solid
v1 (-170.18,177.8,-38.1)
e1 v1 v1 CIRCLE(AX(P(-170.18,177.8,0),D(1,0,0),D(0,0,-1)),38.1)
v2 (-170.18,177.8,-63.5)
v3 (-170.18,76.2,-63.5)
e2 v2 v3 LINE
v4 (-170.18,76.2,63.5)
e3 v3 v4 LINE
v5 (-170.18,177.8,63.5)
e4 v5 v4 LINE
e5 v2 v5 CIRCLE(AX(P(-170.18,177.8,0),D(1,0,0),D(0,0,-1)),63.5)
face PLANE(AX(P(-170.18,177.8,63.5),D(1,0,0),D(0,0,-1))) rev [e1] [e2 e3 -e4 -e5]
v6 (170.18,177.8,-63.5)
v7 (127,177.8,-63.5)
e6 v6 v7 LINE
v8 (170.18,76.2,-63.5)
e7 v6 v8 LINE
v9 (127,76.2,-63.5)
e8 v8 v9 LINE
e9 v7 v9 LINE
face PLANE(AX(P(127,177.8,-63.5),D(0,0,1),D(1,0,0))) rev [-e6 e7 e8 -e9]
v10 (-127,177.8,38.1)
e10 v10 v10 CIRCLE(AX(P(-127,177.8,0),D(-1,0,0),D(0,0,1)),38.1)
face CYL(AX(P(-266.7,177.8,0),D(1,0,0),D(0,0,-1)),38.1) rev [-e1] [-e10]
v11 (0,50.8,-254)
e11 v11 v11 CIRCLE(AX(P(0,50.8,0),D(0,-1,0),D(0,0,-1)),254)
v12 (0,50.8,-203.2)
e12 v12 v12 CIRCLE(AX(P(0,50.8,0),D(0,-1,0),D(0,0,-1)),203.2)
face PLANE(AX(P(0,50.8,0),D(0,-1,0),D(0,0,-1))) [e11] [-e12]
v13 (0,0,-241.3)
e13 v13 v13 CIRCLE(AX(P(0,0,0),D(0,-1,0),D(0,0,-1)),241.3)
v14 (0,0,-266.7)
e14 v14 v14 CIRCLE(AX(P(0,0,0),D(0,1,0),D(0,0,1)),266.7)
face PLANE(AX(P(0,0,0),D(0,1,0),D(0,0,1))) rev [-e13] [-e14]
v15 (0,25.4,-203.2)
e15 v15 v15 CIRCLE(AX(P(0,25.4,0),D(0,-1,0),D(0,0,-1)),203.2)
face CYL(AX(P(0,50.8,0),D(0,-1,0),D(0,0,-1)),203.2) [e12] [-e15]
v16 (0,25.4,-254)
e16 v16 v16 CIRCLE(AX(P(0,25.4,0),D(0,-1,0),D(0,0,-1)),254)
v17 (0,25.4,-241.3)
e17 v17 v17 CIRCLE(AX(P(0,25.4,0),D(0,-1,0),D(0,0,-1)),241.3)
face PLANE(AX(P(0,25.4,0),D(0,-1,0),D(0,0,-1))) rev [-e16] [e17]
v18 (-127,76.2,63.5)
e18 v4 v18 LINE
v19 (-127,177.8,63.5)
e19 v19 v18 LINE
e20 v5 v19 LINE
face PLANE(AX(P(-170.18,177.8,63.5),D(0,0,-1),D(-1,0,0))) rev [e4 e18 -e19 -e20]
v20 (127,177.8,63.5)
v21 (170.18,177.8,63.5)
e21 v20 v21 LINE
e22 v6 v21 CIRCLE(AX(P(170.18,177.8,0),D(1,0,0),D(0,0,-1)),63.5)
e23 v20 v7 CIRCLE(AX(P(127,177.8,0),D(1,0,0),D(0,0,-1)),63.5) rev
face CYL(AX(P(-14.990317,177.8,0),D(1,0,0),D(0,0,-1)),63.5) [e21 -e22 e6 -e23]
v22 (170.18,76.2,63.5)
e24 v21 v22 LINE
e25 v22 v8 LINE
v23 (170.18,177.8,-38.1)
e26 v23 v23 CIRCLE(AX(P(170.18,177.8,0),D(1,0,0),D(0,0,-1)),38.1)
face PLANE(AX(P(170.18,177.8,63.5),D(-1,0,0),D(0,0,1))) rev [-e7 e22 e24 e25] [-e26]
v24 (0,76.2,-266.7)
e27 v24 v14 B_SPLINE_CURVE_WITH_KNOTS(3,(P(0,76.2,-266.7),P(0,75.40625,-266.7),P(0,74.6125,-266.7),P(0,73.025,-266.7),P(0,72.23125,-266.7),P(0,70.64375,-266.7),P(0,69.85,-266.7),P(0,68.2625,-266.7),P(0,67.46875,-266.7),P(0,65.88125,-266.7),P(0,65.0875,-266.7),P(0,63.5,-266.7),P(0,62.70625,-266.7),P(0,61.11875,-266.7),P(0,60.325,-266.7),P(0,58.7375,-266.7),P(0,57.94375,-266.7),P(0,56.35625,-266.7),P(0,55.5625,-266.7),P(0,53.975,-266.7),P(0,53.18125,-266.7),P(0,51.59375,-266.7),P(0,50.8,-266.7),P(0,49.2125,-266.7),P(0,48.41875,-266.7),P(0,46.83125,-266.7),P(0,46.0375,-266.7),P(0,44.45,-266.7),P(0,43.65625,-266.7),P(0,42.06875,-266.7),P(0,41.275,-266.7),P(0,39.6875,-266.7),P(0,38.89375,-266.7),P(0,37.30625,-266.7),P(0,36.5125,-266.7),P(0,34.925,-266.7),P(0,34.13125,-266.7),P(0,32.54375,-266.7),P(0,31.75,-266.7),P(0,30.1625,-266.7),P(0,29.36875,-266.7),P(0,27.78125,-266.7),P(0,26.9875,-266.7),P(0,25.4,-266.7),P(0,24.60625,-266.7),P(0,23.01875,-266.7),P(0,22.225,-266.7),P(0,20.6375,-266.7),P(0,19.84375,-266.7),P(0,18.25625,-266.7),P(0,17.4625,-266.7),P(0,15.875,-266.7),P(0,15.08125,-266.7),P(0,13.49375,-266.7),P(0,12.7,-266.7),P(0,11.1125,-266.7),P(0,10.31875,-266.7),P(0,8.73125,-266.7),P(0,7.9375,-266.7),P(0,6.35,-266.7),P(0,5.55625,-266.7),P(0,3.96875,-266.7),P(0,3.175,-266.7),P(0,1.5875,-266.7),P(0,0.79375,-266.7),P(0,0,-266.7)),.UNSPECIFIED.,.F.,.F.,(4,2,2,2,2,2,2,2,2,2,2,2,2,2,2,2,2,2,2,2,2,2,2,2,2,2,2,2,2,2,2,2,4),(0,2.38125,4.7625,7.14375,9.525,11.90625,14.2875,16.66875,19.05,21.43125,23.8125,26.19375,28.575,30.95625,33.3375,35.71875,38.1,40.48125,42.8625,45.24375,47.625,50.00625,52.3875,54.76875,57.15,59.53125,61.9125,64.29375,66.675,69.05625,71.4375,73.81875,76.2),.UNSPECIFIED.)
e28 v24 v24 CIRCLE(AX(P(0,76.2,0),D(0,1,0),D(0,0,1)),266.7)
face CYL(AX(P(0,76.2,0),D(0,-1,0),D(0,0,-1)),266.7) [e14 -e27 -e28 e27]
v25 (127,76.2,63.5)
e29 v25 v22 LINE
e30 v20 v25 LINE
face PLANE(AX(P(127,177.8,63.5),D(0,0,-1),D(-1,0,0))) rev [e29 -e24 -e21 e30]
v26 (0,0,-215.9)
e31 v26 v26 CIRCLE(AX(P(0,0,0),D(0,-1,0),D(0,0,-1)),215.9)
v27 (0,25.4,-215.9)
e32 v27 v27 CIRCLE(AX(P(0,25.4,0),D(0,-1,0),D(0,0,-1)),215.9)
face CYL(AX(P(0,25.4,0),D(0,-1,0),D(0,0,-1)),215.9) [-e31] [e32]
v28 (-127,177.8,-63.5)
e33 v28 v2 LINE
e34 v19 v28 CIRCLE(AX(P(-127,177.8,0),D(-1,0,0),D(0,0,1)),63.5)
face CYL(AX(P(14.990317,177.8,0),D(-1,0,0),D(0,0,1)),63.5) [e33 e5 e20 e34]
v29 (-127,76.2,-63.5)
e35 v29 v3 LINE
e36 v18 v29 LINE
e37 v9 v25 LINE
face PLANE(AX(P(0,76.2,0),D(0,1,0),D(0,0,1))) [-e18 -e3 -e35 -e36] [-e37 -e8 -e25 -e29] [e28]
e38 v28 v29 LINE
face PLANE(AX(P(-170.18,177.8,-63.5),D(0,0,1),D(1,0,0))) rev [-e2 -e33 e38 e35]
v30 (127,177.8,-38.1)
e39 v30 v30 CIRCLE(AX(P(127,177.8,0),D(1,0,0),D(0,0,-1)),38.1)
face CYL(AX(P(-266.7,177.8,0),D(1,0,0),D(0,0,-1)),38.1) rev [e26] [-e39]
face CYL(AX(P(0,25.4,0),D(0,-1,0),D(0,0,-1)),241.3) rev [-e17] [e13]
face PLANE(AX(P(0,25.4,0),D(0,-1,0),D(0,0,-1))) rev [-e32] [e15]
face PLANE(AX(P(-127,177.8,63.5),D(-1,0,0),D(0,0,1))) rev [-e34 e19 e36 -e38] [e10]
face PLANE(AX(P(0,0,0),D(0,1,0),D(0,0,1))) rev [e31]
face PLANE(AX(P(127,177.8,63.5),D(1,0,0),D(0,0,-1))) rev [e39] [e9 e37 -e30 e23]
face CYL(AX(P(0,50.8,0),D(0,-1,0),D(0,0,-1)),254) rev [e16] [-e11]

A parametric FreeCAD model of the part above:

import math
import FreeCAD as App
import Part
import Sketcher
from FreeCAD import Vector
Q = App.Units.Quantity


def add_polygon(sketch, points):
    """Adds a closed chain of lines whose ends are joined by coincident constraints."""
    first, n = sketch.GeometryCount, len(points)
    for a, b in zip(points, points[1:] + points[:1]):
        sketch.addGeometry(Part.LineSegment(App.Vector(*a, 0), App.Vector(*b, 0)), False)
    for i in range(n):
        sketch.addConstraint(Sketcher.Constraint("Coincident", first + i, 2, first + (i + 1) % n, 1))

doc = App.newDocument("Part")
body = doc.addObject("PartDesign::Body", "Body")

# Sketch on XZ plane
sketch1 = body.newObject("Sketcher::SketchObject", "Sketch")
sketch1.AttachmentSupport = (doc.getObject("XZ_Plane"), [""])
sketch1.MapMode = "FlatFace"
sketch1.addGeometry(Part.Circle(Vector(0, 0, 0), Vector(0, 0, 1), 267), False)
sketch1.addConstraint([
    Sketcher.Constraint("Coincident", 0, 3, -1, 1),
    Sketcher.Constraint("Diameter", 0, Q("21 in")),
])
pad1 = body.newObject("PartDesign::Pad", "Pad")
pad1.Profile = sketch1
pad1.Length = Q("3 in")
pad1.Reversed = True

# Sketch on XZ plane
sketch2 = body.newObject("Sketcher::SketchObject", "Sketch001")
sketch2.AttachmentSupport = (doc.getObject("XZ_Plane"), [""])
sketch2.MapMode = "FlatFace"
sketch2.addGeometry([
    Part.Circle(Vector(0, 0, 0), Vector(0, 0, 1), 241),
    Part.Circle(Vector(0, 0, 0), Vector(0, 0, 1), 216),
], False)
sketch2.addConstraint([
    Sketcher.Constraint("Coincident", 0, 3, -1, 1),
    Sketcher.Constraint("Coincident", 1, 3, -1, 1),
    Sketcher.Constraint("Diameter", 0, Q("19 in")),
    Sketcher.Constraint("Diameter", 1, Q("17 in")),
])
pocket1 = body.newObject("PartDesign::Pocket", "Pocket")
pocket1.Profile = sketch2
pocket1.Length = Q("1 in")

# Sketch on XZ plane
sketch3 = body.newObject("Sketcher::SketchObject", "Sketch002")
sketch3.AttachmentSupport = (doc.getObject("XZ_Plane"), [""])
sketch3.MapMode = "FlatFace"
sketch3.AttachmentOffset = App.Placement(Vector(0, 0, -1 * 25.4), App.Rotation())
sketch3.addGeometry([
    Part.Circle(Vector(0, 0, 0), Vector(0, 0, 1), 254),
    Part.Circle(Vector(0, 0, 0), Vector(0, 0, 1), 203),
], False)
sketch3.addConstraint([
    Sketcher.Constraint("Coincident", 0, 3, -1, 1),
    Sketcher.Constraint("Coincident", 1, 3, -1, 1),
    Sketcher.Constraint("Diameter", 0, Q("20 in")),
    Sketcher.Constraint("Diameter", 1, Q("16 in")),
])
pocket2 = body.newObject("PartDesign::Pocket", "Pocket001")
pocket2.Profile = sketch3
pocket2.Length = Q("1 in")

# Sketch on XZ plane
sketch4 = body.newObject("Sketcher::SketchObject", "Sketch003")
sketch4.AttachmentSupport = (doc.getObject("XZ_Plane"), [""])
sketch4.MapMode = "FlatFace"
sketch4.AttachmentOffset = App.Placement(Vector(0, 0, -3 * 25.4), App.Rotation())
add_polygon(sketch4, [(127, -64), (127, 64), (170, 64), (170, -64)])  # lines 0-3
add_polygon(sketch4, [(-170, -64), (-170, 64), (-127, 64), (-127, -64)])  # lines 4-7
sketch4.addConstraint([
    Sketcher.Constraint("Vertical", 0),
    Sketcher.Constraint("Horizontal", 1),
    Sketcher.Constraint("Vertical", 2),
    Sketcher.Constraint("Horizontal", 3),
    Sketcher.Constraint("Vertical", 4),
    Sketcher.Constraint("Horizontal", 5),
    Sketcher.Constraint("Vertical", 6),
    Sketcher.Constraint("Horizontal", 7),
    Sketcher.Constraint("Symmetric", 2, 2, 4, 2, -1, 1),
    Sketcher.Constraint("Symmetric", 0, 2, 6, 2, -1, 1),
    Sketcher.Constraint("Horizontal", 1, 2, 4, 2),
    Sketcher.Constraint("DistanceY", 0, 1, 0, 2, Q("5 in")),
    Sketcher.Constraint("DistanceX", 1, 1, 1, 2, Q("1.7 in")),
    Sketcher.Constraint("DistanceX", -1, 1, 0, 2, Q("5 in")),
])
pad2 = body.newObject("PartDesign::Pad", "Pad001")
pad2.Profile = sketch4
pad2.Length = Q("4 in")
pad2.Reversed = True

# Sketch on YZ plane
sketch5 = body.newObject("Sketcher::SketchObject", "Sketch004")
sketch5.AttachmentSupport = (doc.getObject("YZ_Plane"), [""])
sketch5.MapMode = "FlatFace"
sketch5.AttachmentOffset = App.Placement(Vector(0, 0, -5 * 25.4), App.Rotation())
sketch5.addGeometry([
    Part.LineSegment(Vector(178, -64, 0), Vector(178, 64, 0)),
    Part.ArcOfCircle(Part.Circle(Vector(178, 0, 0), Vector(0, 0, 1), 64), math.radians(-90), math.radians(90)),
], False)
sketch5.addConstraint([
    Sketcher.Constraint("Coincident", 0, 1, 1, 1),
    Sketcher.Constraint("Coincident", 1, 2, 0, 2),
    Sketcher.Constraint("Vertical", 0),
    Sketcher.Constraint("PointOnObject", 1, 3, -1),
    Sketcher.Constraint("Vertical", 1, 3, 0, 1),
    Sketcher.Constraint("Radius", 1, Q("2.5 in")),
    Sketcher.Constraint("DistanceX", -1, 1, 1, 3, Q("7 in")),
])
pad3 = body.newObject("PartDesign::Pad", "Pad002")
pad3.Profile = sketch5
pad3.Length = Q("1.7 in")
pad3.Reversed = True

# Sketch on YZ plane
sketch6 = body.newObject("Sketcher::SketchObject", "Sketch005")
sketch6.AttachmentSupport = (doc.getObject("YZ_Plane"), [""])
sketch6.MapMode = "FlatFace"
sketch6.AttachmentOffset = App.Placement(Vector(0, 0, 6.7 * 25.4), App.Rotation())
sketch6.addGeometry([
    Part.LineSegment(Vector(178, 64, 0), Vector(178, -64, 0)),
    Part.ArcOfCircle(Part.Circle(Vector(178, 0, 0), Vector(0, 0, 1), 64), math.radians(-90), math.radians(90)),
], False)
sketch6.addConstraint([
    Sketcher.Constraint("Coincident", 0, 1, 1, 2),
    Sketcher.Constraint("Coincident", 1, 1, 0, 2),
    Sketcher.Constraint("Vertical", 0),
    Sketcher.Constraint("PointOnObject", 1, 3, -1),
    Sketcher.Constraint("Vertical", 1, 3, 0, 1),
    Sketcher.Constraint("Radius", 1, Q("2.5 in")),
    Sketcher.Constraint("DistanceX", -1, 1, 1, 3, Q("7 in")),
])
pad4 = body.newObject("PartDesign::Pad", "Pad003")
pad4.Profile = sketch6
pad4.Length = Q("1.7 in")
pad4.Reversed = True

# Sketch on YZ plane
sketch7 = body.newObject("Sketcher::SketchObject", "Sketch006")
sketch7.AttachmentSupport = (doc.getObject("YZ_Plane"), [""])
sketch7.MapMode = "FlatFace"
sketch7.AttachmentOffset = App.Placement(Vector(0, 0, 6.7 * 25.4), App.Rotation())
sketch7.addGeometry(Part.Circle(Vector(178, 0, 0), Vector(0, 0, 1), 38), False)
sketch7.addConstraint([
    Sketcher.Constraint("PointOnObject", 0, 3, -1),
    Sketcher.Constraint("Diameter", 0, Q("3 in")),
    Sketcher.Constraint("DistanceX", -1, 1, 0, 3, Q("7 in")),
])
pocket3 = body.newObject("PartDesign::Pocket", "Pocket002")
pocket3.Profile = sketch7
pocket3.Type = "ThroughAll"

doc.recompute()
